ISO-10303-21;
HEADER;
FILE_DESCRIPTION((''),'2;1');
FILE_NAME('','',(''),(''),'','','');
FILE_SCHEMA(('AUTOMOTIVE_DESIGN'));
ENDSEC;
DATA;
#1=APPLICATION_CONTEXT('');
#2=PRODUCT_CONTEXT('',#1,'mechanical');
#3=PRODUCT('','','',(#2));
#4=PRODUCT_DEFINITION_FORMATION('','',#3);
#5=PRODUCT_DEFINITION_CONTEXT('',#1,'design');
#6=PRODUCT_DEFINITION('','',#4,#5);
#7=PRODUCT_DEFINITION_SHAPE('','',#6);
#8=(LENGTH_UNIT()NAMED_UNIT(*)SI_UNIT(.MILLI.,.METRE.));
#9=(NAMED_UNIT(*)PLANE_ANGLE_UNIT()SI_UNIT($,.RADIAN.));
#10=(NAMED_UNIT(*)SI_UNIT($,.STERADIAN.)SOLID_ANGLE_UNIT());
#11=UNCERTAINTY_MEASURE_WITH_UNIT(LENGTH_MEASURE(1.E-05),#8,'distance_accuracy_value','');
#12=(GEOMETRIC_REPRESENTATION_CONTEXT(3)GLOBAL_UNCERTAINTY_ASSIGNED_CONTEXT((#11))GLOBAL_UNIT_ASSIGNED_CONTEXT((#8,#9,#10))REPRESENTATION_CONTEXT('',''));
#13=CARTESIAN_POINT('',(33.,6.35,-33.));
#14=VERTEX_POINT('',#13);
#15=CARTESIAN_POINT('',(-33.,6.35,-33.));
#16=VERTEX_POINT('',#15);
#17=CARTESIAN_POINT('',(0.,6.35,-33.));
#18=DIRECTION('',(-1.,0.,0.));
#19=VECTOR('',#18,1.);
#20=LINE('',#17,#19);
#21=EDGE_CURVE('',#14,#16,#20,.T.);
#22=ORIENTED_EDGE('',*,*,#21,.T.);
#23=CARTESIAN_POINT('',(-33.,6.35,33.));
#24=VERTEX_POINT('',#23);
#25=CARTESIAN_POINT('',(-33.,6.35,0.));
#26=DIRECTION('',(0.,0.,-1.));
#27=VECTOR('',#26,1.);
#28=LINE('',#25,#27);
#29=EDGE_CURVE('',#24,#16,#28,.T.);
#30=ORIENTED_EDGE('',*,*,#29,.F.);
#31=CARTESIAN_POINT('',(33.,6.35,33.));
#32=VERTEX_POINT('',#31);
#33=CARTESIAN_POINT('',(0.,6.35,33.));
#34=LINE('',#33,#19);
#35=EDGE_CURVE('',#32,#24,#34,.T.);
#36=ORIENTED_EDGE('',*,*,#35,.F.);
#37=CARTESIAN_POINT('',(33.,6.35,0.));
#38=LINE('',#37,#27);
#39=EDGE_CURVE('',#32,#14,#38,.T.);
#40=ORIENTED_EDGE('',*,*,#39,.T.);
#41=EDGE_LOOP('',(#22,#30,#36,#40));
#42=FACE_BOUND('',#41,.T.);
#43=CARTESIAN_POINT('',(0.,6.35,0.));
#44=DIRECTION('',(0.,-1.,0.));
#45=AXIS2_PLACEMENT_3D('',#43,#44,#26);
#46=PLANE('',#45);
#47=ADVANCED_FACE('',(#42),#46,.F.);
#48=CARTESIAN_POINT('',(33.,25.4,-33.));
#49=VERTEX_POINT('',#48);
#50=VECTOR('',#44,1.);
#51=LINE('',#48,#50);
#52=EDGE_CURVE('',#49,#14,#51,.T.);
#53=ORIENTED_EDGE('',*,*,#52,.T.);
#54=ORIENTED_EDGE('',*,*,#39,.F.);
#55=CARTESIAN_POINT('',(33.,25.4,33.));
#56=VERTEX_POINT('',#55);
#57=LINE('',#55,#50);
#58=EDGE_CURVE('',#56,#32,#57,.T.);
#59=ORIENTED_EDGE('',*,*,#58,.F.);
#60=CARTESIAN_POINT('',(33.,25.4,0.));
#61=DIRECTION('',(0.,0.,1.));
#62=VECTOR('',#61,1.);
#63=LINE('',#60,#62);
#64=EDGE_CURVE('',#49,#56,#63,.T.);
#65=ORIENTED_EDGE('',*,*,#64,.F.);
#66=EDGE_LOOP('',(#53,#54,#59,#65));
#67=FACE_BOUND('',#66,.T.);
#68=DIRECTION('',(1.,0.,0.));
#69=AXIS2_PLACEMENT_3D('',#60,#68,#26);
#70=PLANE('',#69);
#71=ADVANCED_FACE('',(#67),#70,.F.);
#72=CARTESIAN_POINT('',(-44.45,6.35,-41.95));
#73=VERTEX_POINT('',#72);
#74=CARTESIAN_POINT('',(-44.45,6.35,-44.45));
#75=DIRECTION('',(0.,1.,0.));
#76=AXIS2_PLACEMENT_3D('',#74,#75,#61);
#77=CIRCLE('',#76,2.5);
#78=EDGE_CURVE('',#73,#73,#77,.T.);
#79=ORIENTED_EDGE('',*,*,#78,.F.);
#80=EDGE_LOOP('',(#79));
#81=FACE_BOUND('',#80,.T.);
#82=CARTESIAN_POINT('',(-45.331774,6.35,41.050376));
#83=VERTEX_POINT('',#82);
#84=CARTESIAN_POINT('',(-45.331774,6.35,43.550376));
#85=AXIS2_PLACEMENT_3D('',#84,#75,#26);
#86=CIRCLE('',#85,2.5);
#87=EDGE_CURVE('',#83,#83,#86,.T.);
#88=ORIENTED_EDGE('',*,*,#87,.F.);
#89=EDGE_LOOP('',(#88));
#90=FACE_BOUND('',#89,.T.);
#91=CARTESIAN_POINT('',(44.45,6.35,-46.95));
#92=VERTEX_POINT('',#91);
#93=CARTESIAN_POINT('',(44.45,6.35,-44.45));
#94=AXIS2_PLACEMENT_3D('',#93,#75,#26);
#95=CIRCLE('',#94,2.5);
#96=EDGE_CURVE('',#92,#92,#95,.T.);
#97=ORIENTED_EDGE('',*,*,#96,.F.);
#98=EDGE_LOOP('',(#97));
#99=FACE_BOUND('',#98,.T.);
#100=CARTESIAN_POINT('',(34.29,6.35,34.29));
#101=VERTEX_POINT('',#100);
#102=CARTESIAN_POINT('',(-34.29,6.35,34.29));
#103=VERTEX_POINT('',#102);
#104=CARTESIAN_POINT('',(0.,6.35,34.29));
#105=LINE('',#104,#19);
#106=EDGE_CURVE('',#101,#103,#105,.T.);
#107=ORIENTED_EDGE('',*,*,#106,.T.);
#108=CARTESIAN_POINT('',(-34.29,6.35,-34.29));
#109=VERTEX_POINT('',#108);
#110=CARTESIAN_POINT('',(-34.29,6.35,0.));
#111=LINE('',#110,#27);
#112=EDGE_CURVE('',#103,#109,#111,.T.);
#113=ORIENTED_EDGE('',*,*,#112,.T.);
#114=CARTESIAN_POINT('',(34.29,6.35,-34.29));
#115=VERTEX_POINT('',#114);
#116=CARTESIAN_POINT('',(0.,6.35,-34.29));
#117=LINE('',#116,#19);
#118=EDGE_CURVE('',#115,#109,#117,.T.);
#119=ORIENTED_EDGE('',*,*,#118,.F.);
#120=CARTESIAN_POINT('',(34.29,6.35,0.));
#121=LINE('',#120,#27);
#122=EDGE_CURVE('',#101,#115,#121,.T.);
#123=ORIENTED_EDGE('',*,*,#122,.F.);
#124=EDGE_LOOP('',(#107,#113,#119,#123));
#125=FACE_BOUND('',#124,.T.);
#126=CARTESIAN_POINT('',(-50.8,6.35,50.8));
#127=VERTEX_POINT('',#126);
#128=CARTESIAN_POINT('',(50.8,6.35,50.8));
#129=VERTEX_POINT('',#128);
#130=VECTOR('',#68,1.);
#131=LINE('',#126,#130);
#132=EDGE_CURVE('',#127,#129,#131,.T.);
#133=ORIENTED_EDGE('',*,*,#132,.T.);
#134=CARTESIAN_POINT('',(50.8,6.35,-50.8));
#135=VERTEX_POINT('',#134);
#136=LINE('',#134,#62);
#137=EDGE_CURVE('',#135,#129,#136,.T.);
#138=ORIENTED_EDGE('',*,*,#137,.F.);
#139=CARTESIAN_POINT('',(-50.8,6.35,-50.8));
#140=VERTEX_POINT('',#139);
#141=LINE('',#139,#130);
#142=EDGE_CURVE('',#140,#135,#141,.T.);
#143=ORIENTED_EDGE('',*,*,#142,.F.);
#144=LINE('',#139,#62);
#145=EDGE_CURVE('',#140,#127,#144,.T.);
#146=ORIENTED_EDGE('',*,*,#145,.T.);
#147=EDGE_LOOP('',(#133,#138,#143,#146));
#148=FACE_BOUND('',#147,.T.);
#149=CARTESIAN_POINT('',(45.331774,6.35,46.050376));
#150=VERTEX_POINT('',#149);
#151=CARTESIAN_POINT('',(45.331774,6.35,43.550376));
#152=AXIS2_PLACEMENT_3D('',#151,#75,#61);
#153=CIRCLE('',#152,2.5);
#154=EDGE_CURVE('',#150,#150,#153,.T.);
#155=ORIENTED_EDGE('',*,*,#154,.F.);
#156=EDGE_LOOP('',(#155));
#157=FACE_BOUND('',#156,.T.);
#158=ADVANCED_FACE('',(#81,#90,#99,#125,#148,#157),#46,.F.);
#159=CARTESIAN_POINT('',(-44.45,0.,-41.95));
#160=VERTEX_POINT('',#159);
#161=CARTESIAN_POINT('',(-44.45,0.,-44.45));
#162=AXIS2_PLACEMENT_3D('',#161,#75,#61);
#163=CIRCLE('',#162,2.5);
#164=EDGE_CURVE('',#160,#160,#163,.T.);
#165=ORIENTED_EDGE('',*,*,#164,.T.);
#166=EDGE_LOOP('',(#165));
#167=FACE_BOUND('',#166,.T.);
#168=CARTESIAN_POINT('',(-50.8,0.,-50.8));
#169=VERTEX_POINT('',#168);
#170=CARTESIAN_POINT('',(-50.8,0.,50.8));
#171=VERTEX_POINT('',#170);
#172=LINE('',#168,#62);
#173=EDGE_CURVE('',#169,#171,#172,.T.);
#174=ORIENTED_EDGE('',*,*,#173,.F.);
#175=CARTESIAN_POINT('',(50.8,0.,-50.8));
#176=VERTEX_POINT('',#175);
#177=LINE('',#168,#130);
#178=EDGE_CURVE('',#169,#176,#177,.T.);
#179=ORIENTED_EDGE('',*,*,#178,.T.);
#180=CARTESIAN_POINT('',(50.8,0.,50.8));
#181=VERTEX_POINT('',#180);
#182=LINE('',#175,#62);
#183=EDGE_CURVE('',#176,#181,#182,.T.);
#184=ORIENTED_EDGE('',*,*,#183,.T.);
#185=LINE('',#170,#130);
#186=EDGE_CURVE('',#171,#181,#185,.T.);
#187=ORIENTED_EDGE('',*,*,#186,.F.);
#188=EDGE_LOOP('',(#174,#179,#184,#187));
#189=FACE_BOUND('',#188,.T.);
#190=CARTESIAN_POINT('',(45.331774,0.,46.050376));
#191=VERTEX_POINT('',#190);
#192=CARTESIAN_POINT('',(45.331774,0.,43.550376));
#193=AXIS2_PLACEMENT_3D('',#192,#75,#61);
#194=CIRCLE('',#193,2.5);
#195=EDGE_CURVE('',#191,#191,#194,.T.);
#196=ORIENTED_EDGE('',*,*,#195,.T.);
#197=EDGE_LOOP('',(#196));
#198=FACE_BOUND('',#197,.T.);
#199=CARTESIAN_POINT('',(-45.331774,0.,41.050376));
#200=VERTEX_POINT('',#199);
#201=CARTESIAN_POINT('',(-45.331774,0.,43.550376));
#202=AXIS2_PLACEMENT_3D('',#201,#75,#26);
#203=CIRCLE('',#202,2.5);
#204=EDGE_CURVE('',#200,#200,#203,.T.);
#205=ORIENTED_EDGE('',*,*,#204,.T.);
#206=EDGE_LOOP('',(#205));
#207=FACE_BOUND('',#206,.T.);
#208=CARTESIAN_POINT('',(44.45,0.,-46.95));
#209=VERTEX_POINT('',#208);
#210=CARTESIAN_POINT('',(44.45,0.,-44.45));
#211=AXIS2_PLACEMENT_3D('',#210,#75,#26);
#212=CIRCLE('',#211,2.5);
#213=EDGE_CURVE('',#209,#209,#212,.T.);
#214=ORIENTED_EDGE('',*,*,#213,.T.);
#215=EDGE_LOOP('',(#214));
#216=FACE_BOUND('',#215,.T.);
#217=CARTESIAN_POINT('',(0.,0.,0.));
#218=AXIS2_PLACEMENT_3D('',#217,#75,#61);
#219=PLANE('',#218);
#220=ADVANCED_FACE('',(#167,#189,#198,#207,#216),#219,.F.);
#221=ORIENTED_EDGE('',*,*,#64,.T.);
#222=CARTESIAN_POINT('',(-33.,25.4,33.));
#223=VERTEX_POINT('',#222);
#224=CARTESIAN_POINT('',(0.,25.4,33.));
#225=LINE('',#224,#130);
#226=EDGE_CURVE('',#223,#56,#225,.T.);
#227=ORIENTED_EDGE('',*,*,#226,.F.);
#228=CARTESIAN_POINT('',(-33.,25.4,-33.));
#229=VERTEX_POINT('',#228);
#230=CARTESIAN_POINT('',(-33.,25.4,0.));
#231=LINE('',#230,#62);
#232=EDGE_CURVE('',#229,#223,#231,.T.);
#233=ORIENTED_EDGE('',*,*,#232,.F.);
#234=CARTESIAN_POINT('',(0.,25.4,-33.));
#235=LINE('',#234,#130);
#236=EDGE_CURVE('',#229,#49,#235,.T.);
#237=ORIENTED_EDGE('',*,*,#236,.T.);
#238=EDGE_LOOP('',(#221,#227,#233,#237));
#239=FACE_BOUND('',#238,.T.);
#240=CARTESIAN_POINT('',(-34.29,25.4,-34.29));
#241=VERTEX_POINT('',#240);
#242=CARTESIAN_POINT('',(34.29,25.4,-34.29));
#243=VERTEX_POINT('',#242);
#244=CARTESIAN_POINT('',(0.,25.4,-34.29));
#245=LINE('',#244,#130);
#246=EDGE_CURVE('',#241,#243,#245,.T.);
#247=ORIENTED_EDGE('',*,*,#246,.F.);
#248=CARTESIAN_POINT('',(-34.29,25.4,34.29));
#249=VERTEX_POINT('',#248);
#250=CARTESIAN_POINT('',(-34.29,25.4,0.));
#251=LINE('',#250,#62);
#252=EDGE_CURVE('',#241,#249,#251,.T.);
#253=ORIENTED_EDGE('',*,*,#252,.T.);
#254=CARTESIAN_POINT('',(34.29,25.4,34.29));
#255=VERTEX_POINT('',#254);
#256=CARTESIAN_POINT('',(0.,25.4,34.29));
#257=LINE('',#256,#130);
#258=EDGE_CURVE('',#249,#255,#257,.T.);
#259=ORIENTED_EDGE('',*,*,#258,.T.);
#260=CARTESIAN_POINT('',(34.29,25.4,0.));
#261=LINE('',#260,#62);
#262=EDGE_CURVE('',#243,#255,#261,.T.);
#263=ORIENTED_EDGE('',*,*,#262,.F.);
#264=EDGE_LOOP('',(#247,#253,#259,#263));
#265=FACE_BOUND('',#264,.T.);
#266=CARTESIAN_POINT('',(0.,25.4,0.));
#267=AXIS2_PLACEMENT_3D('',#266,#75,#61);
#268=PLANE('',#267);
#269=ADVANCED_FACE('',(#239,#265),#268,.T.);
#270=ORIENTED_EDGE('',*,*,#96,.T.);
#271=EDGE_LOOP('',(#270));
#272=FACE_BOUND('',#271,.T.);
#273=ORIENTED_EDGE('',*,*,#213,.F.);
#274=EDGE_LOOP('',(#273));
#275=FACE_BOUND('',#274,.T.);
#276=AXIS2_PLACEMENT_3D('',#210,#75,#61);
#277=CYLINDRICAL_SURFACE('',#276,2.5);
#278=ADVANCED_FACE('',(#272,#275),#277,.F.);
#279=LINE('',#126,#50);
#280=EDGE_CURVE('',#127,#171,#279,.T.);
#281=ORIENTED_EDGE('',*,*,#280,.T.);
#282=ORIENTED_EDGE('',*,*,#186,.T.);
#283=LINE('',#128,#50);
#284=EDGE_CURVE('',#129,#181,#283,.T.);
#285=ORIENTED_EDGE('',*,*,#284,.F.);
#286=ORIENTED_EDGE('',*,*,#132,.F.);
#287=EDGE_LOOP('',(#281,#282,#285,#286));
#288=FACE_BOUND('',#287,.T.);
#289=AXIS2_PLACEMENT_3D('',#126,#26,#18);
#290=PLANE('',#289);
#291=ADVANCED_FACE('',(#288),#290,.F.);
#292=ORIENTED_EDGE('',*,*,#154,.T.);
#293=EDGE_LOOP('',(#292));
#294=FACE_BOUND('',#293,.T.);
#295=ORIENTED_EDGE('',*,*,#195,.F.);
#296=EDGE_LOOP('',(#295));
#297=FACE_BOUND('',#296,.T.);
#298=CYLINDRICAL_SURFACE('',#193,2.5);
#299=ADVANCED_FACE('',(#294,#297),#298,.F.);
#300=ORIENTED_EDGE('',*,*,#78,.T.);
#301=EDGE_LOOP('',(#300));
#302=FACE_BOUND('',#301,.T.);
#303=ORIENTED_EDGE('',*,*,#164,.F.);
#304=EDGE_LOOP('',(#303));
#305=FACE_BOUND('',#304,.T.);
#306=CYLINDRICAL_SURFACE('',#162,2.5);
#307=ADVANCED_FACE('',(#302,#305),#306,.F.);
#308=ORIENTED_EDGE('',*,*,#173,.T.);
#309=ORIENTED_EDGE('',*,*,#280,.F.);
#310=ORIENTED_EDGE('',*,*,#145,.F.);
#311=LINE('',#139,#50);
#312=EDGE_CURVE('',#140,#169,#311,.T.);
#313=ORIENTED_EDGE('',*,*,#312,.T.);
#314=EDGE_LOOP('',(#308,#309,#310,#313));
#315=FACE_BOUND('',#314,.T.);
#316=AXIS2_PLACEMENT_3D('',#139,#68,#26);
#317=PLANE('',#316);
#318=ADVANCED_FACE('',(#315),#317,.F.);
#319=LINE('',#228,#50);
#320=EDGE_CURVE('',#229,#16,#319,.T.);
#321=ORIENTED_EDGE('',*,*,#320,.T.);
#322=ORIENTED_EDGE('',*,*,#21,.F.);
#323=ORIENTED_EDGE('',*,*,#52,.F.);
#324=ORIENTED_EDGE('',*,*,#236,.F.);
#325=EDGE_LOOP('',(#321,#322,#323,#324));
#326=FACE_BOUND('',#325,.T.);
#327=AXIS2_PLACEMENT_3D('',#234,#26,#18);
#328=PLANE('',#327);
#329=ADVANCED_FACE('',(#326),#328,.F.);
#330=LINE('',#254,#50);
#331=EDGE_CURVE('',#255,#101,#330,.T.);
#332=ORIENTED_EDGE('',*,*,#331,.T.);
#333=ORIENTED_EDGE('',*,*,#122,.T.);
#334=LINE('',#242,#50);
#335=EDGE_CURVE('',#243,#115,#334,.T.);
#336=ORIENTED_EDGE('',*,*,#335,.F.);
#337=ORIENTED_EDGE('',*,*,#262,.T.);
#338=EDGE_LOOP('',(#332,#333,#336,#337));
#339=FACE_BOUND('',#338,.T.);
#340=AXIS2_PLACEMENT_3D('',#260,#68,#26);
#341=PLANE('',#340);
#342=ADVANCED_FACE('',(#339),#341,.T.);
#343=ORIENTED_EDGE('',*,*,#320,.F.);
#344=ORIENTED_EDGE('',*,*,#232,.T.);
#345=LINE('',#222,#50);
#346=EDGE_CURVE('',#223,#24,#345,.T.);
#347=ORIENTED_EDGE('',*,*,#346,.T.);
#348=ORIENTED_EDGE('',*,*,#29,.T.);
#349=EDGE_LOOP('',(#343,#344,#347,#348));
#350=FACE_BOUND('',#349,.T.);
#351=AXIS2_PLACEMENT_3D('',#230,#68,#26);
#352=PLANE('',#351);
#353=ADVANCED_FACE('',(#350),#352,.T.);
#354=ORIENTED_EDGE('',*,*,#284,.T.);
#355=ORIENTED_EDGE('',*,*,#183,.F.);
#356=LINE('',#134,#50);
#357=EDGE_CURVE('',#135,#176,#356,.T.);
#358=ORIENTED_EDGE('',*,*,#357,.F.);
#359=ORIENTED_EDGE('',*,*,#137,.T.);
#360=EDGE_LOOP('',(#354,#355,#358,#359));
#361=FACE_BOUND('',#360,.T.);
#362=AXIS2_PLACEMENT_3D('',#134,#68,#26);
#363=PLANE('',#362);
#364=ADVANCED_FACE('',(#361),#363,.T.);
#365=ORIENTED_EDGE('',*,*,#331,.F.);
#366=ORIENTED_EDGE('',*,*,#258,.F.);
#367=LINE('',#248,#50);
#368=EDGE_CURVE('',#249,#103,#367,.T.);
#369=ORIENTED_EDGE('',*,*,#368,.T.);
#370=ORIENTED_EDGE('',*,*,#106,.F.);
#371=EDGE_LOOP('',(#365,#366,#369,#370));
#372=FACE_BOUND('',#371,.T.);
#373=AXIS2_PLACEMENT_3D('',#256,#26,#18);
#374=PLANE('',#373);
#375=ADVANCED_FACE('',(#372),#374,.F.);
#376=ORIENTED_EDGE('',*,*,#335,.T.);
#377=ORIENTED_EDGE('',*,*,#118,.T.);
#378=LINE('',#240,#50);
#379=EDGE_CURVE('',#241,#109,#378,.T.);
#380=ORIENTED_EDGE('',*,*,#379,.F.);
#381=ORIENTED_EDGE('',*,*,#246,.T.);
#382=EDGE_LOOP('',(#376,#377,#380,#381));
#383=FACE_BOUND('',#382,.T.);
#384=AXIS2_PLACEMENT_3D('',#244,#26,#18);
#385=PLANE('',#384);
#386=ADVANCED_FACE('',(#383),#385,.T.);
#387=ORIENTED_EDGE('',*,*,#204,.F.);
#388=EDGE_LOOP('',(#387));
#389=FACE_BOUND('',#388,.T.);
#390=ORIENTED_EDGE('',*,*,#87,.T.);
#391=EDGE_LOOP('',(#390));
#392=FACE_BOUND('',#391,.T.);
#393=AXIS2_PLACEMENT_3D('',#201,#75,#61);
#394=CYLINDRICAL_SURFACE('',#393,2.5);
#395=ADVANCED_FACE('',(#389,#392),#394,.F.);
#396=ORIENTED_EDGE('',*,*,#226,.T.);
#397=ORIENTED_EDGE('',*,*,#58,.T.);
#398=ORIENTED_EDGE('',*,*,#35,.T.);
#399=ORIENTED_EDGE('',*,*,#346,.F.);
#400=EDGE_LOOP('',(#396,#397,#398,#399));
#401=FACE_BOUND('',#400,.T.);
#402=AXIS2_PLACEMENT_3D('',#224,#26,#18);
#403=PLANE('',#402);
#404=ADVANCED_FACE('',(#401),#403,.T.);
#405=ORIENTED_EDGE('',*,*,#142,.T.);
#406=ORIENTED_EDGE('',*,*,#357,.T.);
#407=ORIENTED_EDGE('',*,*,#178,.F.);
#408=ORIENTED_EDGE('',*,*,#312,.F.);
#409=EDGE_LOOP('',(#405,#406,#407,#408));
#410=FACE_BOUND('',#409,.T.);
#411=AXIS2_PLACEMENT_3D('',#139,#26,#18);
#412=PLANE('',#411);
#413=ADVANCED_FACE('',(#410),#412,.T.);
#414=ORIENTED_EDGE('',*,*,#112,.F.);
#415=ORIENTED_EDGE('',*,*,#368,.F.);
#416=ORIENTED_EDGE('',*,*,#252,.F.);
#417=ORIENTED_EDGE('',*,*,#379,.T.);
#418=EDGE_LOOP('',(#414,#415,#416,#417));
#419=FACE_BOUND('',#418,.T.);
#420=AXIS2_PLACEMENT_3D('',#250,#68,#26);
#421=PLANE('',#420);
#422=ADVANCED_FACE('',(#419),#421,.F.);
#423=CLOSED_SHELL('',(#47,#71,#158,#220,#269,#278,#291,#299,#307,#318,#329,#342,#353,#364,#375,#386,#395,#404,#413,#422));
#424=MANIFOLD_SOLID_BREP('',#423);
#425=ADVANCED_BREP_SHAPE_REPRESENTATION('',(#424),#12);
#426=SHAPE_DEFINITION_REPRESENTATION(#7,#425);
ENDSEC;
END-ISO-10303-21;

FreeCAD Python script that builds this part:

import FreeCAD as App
import Part
import Sketcher

V = App.Vector
Q = App.Units.Quantity


def add_polygon(sketch, points):
    """Adds a closed chain of lines whose ends are joined by coincident constraints."""
    first, n = sketch.GeometryCount, len(points)
    for a, b in zip(points, points[1:] + points[:1]):
        sketch.addGeometry(Part.LineSegment(App.Vector(*a, 0), App.Vector(*b, 0)), False)
    for i in range(n):
        sketch.addConstraint(Sketcher.Constraint("Coincident", first + i, 2, first + (i + 1) % n, 1))

doc = App.newDocument("Part")
body = doc.addObject("PartDesign::Body", "Body")

sketch1 = body.newObject("Sketcher::SketchObject", "Sketch")
sketch1.AttachmentSupport = (doc.getObject("XZ_Plane"), [""])
sketch1.MapMode = "FlatFace"
add_polygon(sketch1, [(-34.29, -34.29), (-34.29, 34.29), (34.29, 34.29), (34.29, -34.29)])
add_polygon(sketch1, [(33, 33), (-33, 33), (-33, -33), (33, -33)])
sketch1.addConstraint(Sketcher.Constraint("Vertical", 0))
sketch1.addConstraint(Sketcher.Constraint("Horizontal", 1))
sketch1.addConstraint(Sketcher.Constraint("Vertical", 2))
sketch1.addConstraint(Sketcher.Constraint("Horizontal", 3))
sketch1.addConstraint(Sketcher.Constraint("Horizontal", 4))
sketch1.addConstraint(Sketcher.Constraint("Vertical", 5))
sketch1.addConstraint(Sketcher.Constraint("Horizontal", 6))
sketch1.addConstraint(Sketcher.Constraint("Vertical", 7))
sketch1.addConstraint(Sketcher.Constraint("Symmetric", 0, 2, 2, 2, -1, 1))
sketch1.addConstraint(Sketcher.Constraint("Symmetric", 4, 2, 6, 2, -1, 1))
sketch1.addConstraint(Sketcher.Constraint("Equal", 3, 0))
sketch1.addConstraint(Sketcher.Constraint("Equal", 6, 5))
sketch1.addConstraint(Sketcher.Constraint("DistanceX", 1, 1, 1, 2, Q("2.7 in")))
sketch1.addConstraint(Sketcher.Constraint("DistanceX", 4, 2, 4, 1, 66.0))
pad1 = body.newObject("PartDesign::Pad", "Pad")
pad1.Profile = sketch1
pad1.Length = Q("1 in")
pad1.Reversed = True

sketch2 = body.newObject("Sketcher::SketchObject", "Sketch001")
sketch2.AttachmentSupport = (doc.getObject("XZ_Plane"), [""])
sketch2.MapMode = "FlatFace"
add_polygon(sketch2, [(-50.8, -50.8), (-50.8, 50.8), (50.8, 50.8), (50.8, -50.8)])
sketch2.addConstraint(Sketcher.Constraint("Vertical", 0))
sketch2.addConstraint(Sketcher.Constraint("Horizontal", 1))
sketch2.addConstraint(Sketcher.Constraint("Vertical", 2))
sketch2.addConstraint(Sketcher.Constraint("Horizontal", 3))
sketch2.addConstraint(Sketcher.Constraint("Symmetric", 0, 2, 2, 2, -1, 1))
sketch2.addConstraint(Sketcher.Constraint("Equal", 3, 0))
sketch2.addConstraint(Sketcher.Constraint("DistanceX", 1, 1, 1, 2, Q("4 in")))
pad2 = body.newObject("PartDesign::Pad", "Pad001")
pad2.Profile = sketch2
pad2.Length = Q("0.25 in")
pad2.Reversed = True

sketch3 = body.newObject("Sketcher::SketchObject", "Sketch002")
sketch3.AttachmentSupport = (doc.getObject("XZ_Plane"), [""])
sketch3.MapMode = "FlatFace"
sketch3.AttachmentOffset = App.Placement(V(0, 0, -0.25 * 25.4), App.Rotation())
sketch3.addGeometry(Part.Circle(V(-44.45, -44.45, 0), V(0, 0, 1), 2.5), False)
sketch3.addGeometry(Part.Circle(V(-45.331774, 43.550376, 0), V(0, 0, 1), 2.5), False)
sketch3.addGeometry(Part.Circle(V(45.331774, 43.550376, 0), V(0, 0, 1), 2.5), False)
sketch3.addGeometry(Part.Circle(V(44.45, -44.45, 0), V(0, 0, 1), 2.5), False)
sketch3.addConstraint(Sketcher.Constraint("Equal", 0, 1))
sketch3.addConstraint(Sketcher.Constraint("Equal", 1, 2))
sketch3.addConstraint(Sketcher.Constraint("Equal", 2, 3))
sketch3.addConstraint(Sketcher.Constraint("Symmetric", 1, 3, 2, 3, -2))
sketch3.addConstraint(Sketcher.Constraint("Symmetric", 0, 3, 3, 3, -2))
sketch3.addConstraint(Sketcher.Constraint("DistanceX", 0, 3, 3, 3, Q("3.5 in")))
sketch3.addConstraint(Sketcher.Constraint("Diameter", 0, 5.0))
sketch3.addConstraint(Sketcher.Constraint("DistanceY", 0, 3, -1, 1, Q("1.75 in")))
sketch3.addConstraint(Sketcher.Constraint("DistanceX", 1, 3, 2, 3, 90.663548))
sketch3.addConstraint(Sketcher.Constraint("DistanceY", -1, 1, 1, 3, 43.550376))
pocket1 = body.newObject("PartDesign::Pocket", "Pocket")
pocket1.Profile = sketch3
pocket1.Type = "ThroughAll"
pocket1.Reversed = True

doc.recompute()
